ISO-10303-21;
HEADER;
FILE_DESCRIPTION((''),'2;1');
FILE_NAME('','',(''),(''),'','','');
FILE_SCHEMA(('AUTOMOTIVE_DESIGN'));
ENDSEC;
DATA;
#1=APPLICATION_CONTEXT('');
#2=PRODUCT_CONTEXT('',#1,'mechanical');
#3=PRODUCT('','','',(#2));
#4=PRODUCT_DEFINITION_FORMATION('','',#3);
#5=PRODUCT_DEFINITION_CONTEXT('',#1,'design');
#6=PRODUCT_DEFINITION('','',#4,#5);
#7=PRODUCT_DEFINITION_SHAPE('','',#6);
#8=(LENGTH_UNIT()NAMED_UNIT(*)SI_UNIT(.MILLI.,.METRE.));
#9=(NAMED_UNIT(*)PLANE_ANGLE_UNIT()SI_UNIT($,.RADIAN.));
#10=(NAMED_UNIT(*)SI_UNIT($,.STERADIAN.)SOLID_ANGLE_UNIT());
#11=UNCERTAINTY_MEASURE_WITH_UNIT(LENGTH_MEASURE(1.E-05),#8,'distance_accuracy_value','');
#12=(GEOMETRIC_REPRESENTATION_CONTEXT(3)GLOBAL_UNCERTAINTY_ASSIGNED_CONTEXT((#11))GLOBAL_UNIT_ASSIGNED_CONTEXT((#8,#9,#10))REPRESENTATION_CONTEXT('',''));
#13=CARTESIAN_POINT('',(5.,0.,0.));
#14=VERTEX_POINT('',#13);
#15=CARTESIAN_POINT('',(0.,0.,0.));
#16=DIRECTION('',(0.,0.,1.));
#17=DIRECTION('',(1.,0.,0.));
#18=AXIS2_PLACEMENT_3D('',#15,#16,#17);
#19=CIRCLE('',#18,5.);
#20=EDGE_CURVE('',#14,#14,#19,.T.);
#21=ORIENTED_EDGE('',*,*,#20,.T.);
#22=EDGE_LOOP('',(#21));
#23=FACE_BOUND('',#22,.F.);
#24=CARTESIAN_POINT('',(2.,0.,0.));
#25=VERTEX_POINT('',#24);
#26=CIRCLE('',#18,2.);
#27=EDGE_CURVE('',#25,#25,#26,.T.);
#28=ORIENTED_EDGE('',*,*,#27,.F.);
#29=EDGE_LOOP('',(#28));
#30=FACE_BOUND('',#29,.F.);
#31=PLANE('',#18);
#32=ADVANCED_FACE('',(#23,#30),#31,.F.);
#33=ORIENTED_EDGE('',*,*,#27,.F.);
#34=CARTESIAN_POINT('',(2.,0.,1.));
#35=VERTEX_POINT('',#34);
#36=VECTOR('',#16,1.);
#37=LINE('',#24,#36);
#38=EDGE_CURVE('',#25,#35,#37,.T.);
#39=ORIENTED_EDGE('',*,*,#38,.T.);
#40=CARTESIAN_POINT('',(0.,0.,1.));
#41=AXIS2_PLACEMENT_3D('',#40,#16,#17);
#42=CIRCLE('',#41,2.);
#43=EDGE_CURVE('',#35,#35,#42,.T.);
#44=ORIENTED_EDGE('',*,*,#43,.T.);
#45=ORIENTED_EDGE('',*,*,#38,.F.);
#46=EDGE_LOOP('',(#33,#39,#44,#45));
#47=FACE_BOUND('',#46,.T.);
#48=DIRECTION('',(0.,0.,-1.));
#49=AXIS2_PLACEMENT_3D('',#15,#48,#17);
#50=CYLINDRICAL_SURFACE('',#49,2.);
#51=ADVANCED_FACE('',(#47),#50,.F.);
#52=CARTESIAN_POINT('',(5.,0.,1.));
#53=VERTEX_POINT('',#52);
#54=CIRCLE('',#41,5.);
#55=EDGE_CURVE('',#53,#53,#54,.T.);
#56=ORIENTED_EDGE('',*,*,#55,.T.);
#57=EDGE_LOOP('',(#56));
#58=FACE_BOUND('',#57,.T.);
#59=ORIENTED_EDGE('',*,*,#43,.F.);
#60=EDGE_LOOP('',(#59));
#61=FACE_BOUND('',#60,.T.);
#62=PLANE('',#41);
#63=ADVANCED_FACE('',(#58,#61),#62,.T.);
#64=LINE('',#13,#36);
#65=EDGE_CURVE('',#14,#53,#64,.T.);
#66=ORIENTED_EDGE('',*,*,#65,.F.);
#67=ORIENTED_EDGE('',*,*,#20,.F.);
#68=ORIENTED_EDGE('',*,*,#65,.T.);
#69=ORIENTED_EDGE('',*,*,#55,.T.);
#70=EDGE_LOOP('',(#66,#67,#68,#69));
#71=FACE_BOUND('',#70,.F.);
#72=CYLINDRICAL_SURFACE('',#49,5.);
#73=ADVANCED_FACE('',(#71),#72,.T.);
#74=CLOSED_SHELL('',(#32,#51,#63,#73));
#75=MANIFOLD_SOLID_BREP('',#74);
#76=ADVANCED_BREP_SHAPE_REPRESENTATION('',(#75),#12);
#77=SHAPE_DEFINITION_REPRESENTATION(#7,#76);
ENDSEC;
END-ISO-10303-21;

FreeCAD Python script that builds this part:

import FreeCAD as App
import Part
import Sketcher

V = App.Vector
Q = App.Units.Quantity

doc = App.newDocument("Part")
body = doc.addObject("PartDesign::Body", "Body")

# Sketch on XY plane
sketch1 = body.newObject("Sketcher::SketchObject", "Sketch")
sketch1.AttachmentSupport = (doc.getObject("XY_Plane"), [""])
sketch1.MapMode = "FlatFace"
sketch1.addGeometry([
    Part.Circle(V(0, 0, 0), V(0, 0, 1), 5),
    Part.Circle(V(0, 0, 0), V(0, 0, 1), 2),
], False)
sketch1.addConstraint([
    Sketcher.Constraint("Coincident", 0, 3, -1, 1),
    Sketcher.Constraint("Coincident", 1, 3, -1, 1),
    Sketcher.Constraint("Diameter", 0, Q("10 mm")),
    Sketcher.Constraint("Diameter", 1, Q("4 mm")),
])
pad1 = body.newObject("PartDesign::Pad", "Pad")
pad1.Profile = sketch1
pad1.Length = 1

doc.recompute()
